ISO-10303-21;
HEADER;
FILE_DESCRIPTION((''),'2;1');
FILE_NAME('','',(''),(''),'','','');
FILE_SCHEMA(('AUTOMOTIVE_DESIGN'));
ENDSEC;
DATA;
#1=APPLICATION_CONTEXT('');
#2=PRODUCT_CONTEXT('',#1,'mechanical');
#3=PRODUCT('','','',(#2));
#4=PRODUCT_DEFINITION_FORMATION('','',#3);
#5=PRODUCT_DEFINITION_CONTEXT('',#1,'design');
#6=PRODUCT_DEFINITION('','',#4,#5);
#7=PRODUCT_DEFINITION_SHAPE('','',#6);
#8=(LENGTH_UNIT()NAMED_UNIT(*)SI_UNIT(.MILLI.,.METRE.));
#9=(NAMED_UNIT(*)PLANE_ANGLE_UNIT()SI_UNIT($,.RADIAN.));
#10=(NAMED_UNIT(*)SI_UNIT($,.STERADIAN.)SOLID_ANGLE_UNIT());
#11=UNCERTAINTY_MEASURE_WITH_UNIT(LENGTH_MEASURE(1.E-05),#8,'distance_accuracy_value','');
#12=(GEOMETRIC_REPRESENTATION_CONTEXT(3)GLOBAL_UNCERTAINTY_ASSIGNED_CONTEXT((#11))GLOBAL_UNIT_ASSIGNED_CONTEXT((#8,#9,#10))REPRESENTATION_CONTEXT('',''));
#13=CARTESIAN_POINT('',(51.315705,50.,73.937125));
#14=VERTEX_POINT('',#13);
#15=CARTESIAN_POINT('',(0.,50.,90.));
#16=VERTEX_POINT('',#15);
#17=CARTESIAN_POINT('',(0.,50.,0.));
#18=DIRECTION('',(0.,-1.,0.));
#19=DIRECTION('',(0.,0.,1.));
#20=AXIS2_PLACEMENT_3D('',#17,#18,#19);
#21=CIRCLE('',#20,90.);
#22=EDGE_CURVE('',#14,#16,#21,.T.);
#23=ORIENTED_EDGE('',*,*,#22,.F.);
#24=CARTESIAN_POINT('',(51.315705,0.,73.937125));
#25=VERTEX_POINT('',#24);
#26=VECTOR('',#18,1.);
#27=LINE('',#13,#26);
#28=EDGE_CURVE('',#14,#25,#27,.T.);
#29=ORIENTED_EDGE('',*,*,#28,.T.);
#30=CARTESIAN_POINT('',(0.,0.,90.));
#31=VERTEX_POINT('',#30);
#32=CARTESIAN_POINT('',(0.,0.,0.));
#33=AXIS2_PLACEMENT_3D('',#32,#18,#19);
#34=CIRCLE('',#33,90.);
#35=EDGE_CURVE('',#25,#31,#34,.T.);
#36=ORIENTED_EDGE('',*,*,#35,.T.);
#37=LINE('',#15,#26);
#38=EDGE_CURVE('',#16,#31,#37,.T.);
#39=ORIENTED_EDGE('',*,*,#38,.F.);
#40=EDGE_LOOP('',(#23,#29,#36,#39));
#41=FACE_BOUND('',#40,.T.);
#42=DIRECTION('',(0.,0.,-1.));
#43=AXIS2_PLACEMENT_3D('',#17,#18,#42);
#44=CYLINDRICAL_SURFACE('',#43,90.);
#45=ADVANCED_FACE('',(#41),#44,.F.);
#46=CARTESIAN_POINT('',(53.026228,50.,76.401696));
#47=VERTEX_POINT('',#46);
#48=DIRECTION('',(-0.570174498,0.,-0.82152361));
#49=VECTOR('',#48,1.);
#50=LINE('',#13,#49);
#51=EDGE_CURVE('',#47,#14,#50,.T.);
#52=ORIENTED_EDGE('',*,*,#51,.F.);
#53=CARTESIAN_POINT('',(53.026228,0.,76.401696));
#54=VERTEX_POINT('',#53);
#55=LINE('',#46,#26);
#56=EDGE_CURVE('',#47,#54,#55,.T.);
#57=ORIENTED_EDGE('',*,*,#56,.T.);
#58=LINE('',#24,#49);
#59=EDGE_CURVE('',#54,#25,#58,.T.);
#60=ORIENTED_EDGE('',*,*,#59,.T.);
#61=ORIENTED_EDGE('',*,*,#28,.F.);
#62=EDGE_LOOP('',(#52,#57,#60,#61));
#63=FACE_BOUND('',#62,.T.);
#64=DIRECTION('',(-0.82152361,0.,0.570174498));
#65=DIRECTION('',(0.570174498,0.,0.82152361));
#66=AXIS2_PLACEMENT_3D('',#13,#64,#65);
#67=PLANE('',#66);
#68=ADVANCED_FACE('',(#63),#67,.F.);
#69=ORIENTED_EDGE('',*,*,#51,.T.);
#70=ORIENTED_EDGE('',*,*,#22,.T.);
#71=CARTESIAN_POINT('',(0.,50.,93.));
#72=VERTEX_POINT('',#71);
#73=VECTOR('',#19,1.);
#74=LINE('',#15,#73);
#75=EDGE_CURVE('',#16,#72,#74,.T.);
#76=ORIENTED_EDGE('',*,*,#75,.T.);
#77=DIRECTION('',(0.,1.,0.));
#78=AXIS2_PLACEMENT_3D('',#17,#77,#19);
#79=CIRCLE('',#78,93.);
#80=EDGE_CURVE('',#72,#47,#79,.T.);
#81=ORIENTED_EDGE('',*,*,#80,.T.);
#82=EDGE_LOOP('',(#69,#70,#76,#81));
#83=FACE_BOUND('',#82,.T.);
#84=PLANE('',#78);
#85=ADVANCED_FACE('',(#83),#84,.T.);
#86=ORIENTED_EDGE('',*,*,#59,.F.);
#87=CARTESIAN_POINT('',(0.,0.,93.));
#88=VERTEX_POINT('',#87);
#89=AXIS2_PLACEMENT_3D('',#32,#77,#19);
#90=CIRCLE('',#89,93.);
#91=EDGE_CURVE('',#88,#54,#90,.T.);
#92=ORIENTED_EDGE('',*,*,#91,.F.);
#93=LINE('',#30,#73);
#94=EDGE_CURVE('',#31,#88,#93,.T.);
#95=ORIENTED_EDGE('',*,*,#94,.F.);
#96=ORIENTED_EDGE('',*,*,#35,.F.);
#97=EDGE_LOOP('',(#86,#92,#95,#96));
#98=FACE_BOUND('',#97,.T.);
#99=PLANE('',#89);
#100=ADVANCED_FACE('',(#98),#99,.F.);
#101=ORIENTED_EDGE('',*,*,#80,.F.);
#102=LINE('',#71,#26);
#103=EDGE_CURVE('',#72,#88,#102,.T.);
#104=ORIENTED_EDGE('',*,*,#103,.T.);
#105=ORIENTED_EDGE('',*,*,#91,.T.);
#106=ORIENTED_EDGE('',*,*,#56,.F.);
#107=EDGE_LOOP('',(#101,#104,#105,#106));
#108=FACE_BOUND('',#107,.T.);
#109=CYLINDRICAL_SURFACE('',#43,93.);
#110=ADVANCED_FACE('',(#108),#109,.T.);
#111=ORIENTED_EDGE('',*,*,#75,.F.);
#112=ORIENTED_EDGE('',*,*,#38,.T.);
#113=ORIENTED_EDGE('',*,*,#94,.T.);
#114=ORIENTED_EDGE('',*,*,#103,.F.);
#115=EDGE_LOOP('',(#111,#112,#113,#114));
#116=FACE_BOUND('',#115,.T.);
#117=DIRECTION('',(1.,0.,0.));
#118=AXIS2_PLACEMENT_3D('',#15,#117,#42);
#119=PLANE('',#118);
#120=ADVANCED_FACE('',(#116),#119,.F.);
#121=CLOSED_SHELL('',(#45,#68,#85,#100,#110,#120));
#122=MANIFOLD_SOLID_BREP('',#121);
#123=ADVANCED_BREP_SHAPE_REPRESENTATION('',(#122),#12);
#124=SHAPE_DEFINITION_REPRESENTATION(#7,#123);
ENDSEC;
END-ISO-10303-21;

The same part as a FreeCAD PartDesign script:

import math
import FreeCAD as App
import Part
import Sketcher
from FreeCAD import Vector

doc = App.newDocument("Part")
params = doc.addObject("Spreadsheet::Sheet", "Params")
for row, (alias, value) in enumerate([
    ("sketch1_radius", "93 mm"),
    ("sketch1_radius2", "90 mm"),
    ("pad1_length", "50 mm"),
], start=1):
    params.set(f"A{row}", alias)
    params.set(f"B{row}", "=" + value)
    params.setAlias(f"B{row}", alias)

body = doc.addObject("PartDesign::Body", "Body")

# Sketch on XZ plane
sketch1 = body.newObject("Sketcher::SketchObject", "Sketch")
sketch1.AttachmentSupport = (doc.getObject("XZ_Plane"), [""])
sketch1.MapMode = "FlatFace"
sketch1.addGeometry(Part.LineSegment(Vector(0, 90, 0), Vector(0, 93, 0)), False)
sketch1.addGeometry(Part.ArcOfCircle(Part.Circle(Vector(0, 0, 0), Vector(0, 0, 1), 93), math.radians(55), math.radians(90)), False)
sketch1.addGeometry(Part.LineSegment(Vector(53, 76.4, 0), Vector(51.3, 73.9, 0)), False)
sketch1.addGeometry(Part.ArcOfCircle(Part.Circle(Vector(0, 0, 0), Vector(0, 0, 1), 90), math.radians(55), math.radians(90)), False)
sketch1.addConstraint(Sketcher.Constraint("Coincident", 0, 2, 1, 2))
sketch1.addConstraint(Sketcher.Constraint("Coincident", 1, 1, 2, 1))
sketch1.addConstraint(Sketcher.Constraint("Coincident", 2, 2, 3, 1))
sketch1.addConstraint(Sketcher.Constraint("Coincident", 3, 2, 0, 1))
sketch1.addConstraint(Sketcher.Constraint("Vertical", 0))
sketch1.addConstraint(Sketcher.Constraint("Coincident", 1, 3, -1, 1))
sketch1.addConstraint(Sketcher.Constraint("Coincident", 3, 3, -1, 1))
sketch1.addConstraint(Sketcher.Constraint("PointOnObject", 0, 2, -2))
sketch1.addConstraint(Sketcher.Constraint("Radius", 1, 93.0))
sketch1.addConstraint(Sketcher.Constraint("Radius", 3, 90.0))
sketch1.addConstraint(Sketcher.Constraint("DistanceX", -1, 1, 1, 1, 53.026228))
sketch1.addConstraint(Sketcher.Constraint("DistanceY", 2, 2, 1, 1, 2.464571))
sketch1.setExpression("Constraints[8]", "Params.sketch1_radius")
sketch1.setExpression("Constraints[9]", "Params.sketch1_radius2")
pad1 = body.newObject("PartDesign::Pad", "Pad")
pad1.Profile = sketch1
pad1.setExpression("Length", "Params.pad1_length")
pad1.Reversed = True

doc.recompute()
